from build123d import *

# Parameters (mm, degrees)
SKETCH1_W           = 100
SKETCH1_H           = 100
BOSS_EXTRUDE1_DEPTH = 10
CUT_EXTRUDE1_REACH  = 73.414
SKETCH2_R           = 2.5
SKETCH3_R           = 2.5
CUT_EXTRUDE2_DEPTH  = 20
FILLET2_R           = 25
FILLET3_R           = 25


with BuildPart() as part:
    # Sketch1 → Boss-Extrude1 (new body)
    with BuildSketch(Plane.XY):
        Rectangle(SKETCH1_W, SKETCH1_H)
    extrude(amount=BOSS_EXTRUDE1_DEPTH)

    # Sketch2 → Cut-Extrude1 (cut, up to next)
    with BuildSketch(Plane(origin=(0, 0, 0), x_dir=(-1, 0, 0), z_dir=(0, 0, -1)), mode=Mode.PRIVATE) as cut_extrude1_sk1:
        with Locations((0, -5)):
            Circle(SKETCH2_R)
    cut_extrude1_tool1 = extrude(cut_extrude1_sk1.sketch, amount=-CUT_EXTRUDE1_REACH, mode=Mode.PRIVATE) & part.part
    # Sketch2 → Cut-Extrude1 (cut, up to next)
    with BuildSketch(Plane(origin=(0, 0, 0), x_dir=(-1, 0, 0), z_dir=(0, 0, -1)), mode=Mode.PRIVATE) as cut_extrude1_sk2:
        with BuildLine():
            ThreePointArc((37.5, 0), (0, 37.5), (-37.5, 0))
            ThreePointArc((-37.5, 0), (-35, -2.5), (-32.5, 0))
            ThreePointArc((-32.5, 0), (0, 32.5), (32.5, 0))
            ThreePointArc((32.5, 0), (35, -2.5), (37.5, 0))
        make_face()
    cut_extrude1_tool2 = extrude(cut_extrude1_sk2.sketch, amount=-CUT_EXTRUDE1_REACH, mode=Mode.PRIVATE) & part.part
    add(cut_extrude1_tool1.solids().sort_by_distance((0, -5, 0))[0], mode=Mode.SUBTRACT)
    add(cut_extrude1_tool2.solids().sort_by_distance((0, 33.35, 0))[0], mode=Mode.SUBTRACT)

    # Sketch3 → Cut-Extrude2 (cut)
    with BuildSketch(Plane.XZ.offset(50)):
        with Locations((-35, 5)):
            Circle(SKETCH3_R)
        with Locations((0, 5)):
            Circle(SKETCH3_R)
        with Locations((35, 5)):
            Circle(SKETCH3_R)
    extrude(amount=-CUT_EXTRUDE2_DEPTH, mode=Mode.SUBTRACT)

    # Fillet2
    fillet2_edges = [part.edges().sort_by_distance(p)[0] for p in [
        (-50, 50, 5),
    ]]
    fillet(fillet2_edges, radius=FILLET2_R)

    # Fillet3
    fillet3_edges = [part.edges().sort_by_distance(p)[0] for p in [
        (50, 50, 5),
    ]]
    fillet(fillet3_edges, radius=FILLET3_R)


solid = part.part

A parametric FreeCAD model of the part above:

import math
import FreeCAD as App
import Part
import Sketcher
Q = App.Units.Quantity


def edges_at(feature, points):
    """Names of the edges that pass closest to the given points."""
    edges = feature.Shape.Edges
    near = lambda p: min(range(len(edges)), key=lambda i: edges[i].distToShape(Part.Vertex(*p))[0])
    return sorted({f"Edge{near(p) + 1}" for p in points})

doc = App.newDocument("Part")
params = doc.addObject("Spreadsheet::Sheet", "Params")
for row, (alias, value) in enumerate([
    ("sketch1_width", "100 mm"),
    ("pad1_length", "10 mm"),
    ("sketch2_diameter", "5 mm"),
    ("sketch3_radius", "37.5 mm"),
    ("sketch3_radius2", "2.5 mm"),
    ("sketch4_diameter", "5 mm"),
    ("pocket3_length", "20 mm"),
    ("fillet_radius", "25 mm"),
    ("fillet2_radius", "25 mm"),
], start=1):
    params.set(f"A{row}", alias)
    params.set(f"B{row}", "=" + value)
    params.setAlias(f"B{row}", alias)

body = doc.addObject("PartDesign::Body", "Body")

# Sketch on XY plane
sketch1 = doc.addObject("Sketcher::SketchObject", "Sketch")
body.addObject(sketch1)
sketch1.AttachmentSupport = (doc.XY_Plane, [""])
sketch1.MapMode = "FlatFace"
sketch1.addGeometry([
    Part.LineSegment(App.Vector(-50, 50, 0), App.Vector(-50, -50, 0)),
    Part.LineSegment(App.Vector(-50, -50, 0), App.Vector(50, -50, 0)),
    Part.LineSegment(App.Vector(50, -50, 0), App.Vector(50, 50, 0)),
    Part.LineSegment(App.Vector(50, 50, 0), App.Vector(-50, 50, 0)),
], False)
sketch1.addConstraint([
    Sketcher.Constraint("Coincident", 0, 2, 1, 1),
    Sketcher.Constraint("Coincident", 1, 2, 2, 1),
    Sketcher.Constraint("Coincident", 2, 2, 3, 1),
    Sketcher.Constraint("Coincident", 3, 2, 0, 1),
    Sketcher.Constraint("Vertical", 0),
    Sketcher.Constraint("Horizontal", 1),
    Sketcher.Constraint("Vertical", 2),
    Sketcher.Constraint("Horizontal", 3),
    Sketcher.Constraint("Symmetric", 0, 2, 2, 2, -1, 1),
    Sketcher.Constraint("Equal", 3, 0),
    Sketcher.Constraint("DistanceX", 1, 1, 1, 2, Q("100 mm")),
])
sketch1.setExpression("Constraints[10]", "Params.sketch1_width")
pad1 = doc.addObject("PartDesign::Pad", "Pad")
body.addObject(pad1)
pad1.Profile = sketch1
pad1.setExpression("Length", "Params.pad1_length")

# Sketch on XY plane
sketch2 = doc.addObject("Sketcher::SketchObject", "Sketch001")
body.addObject(sketch2)
sketch2.AttachmentSupport = (doc.XY_Plane, [""])
sketch2.MapMode = "FlatFace"
sketch2.addGeometry(Part.Circle(App.Vector(0, -5, 0), App.Vector(0, 0, 1), 2.5), False)
sketch2.addConstraint([
    Sketcher.Constraint("PointOnObject", 0, 3, -2),
    Sketcher.Constraint("Diameter", 0, Q("5 mm")),
    Sketcher.Constraint("DistanceY", 0, 3, -1, 1, Q("5 mm")),
])
sketch2.setExpression("Constraints[1]", "Params.sketch2_diameter")
pocket1 = doc.addObject("PartDesign::Pocket", "Pocket")
body.addObject(pocket1)
pocket1.Profile = sketch2
pocket1.Type = "UpToFirst"
pocket1.Reversed = True

# Sketch on XY plane
sketch3 = doc.addObject("Sketcher::SketchObject", "Sketch002")
body.addObject(sketch3)
sketch3.AttachmentSupport = (doc.XY_Plane, [""])
sketch3.MapMode = "FlatFace"
sketch3.addGeometry([
    Part.ArcOfCircle(Part.Circle(App.Vector(0, 0, 0), App.Vector(0, 0, 1), 37.5), math.radians(0), math.radians(180)),
    Part.ArcOfCircle(Part.Circle(App.Vector(35, 0, 0), App.Vector(0, 0, 1), 2.5), math.radians(180), math.radians(360)),
    Part.ArcOfCircle(Part.Circle(App.Vector(0, 0, 0), App.Vector(0, 0, 1), 32.5), math.radians(0), math.radians(180)),
    Part.ArcOfCircle(Part.Circle(App.Vector(-35, 0, 0), App.Vector(0, 0, 1), 2.5), math.radians(180), math.radians(360)),
], False)
sketch3.addConstraint([
    Sketcher.Constraint("Tangent", 0, 1, 1, 2),
    Sketcher.Constraint("Tangent", 1, 1, 2, 1),
    Sketcher.Constraint("Tangent", 2, 2, 3, 2),
    Sketcher.Constraint("Tangent", 3, 1, 0, 2),
    Sketcher.Constraint("Coincident", 0, 3, -1, 1),
    Sketcher.Constraint("Coincident", 2, 3, -1, 1),
    Sketcher.Constraint("PointOnObject", 1, 3, -1),
    Sketcher.Constraint("PointOnObject", 3, 3, -1),
    Sketcher.Constraint("Radius", 0, Q("37.5 mm")),
    Sketcher.Constraint("Radius", 1, Q("2.5 mm")),
])
sketch3.setExpression("Constraints[8]", "Params.sketch3_radius")
sketch3.setExpression("Constraints[9]", "Params.sketch3_radius2")
pocket2 = doc.addObject("PartDesign::Pocket", "Pocket001")
body.addObject(pocket2)
pocket2.Profile = sketch3
pocket2.Type = "UpToFirst"
pocket2.Reversed = True

# Sketch on XZ plane
sketch4 = doc.addObject("Sketcher::SketchObject", "Sketch003")
body.addObject(sketch4)
sketch4.AttachmentSupport = (doc.XZ_Plane, [""])
sketch4.MapMode = "FlatFace"
sketch4.AttachmentOffset = App.Placement(App.Vector(0, 0, 50), App.Rotation())
sketch4.addGeometry([
    Part.Circle(App.Vector(-35, 5, 0), App.Vector(0, 0, 1), 2.5),
    Part.Circle(App.Vector(0, 5, 0), App.Vector(0, 0, 1), 2.5),
    Part.Circle(App.Vector(35, 5, 0), App.Vector(0, 0, 1), 2.5),
], False)
sketch4.addConstraint([
    Sketcher.Constraint("Equal", 0, 1),
    Sketcher.Constraint("Equal", 1, 2),
    Sketcher.Constraint("Symmetric", 0, 3, 2, 3, -2),
    Sketcher.Constraint("PointOnObject", 1, 3, -2),
    Sketcher.Constraint("Horizontal", 0, 3, 1, 3),
    Sketcher.Constraint("Diameter", 0, Q("5 mm")),
    Sketcher.Constraint("DistanceX", 0, 3, -1, 1, Q("35 mm")),
    Sketcher.Constraint("DistanceY", -1, 1, 0, 3, Q("5 mm")),
])
sketch4.setExpression("Constraints[5]", "Params.sketch4_diameter")
pocket3 = doc.addObject("PartDesign::Pocket", "Pocket002")
body.addObject(pocket3)
pocket3.Profile = sketch4
pocket3.setExpression("Length", "Params.pocket3_length")
doc.recompute()

fillet = doc.addObject("PartDesign::Fillet", "Fillet")
body.addObject(fillet)
fillet.Base = (pocket3, edges_at(pocket3, [(-50, 50, 5)]))
fillet.setExpression("Radius", "Params.fillet_radius")
doc.recompute()

fillet2 = doc.addObject("PartDesign::Fillet", "Fillet001")
body.addObject(fillet2)
fillet2.Base = (fillet, edges_at(fillet, [(50, 50, 5)]))
fillet2.setExpression("Radius", "Params.fillet2_radius")

doc.recompute()
